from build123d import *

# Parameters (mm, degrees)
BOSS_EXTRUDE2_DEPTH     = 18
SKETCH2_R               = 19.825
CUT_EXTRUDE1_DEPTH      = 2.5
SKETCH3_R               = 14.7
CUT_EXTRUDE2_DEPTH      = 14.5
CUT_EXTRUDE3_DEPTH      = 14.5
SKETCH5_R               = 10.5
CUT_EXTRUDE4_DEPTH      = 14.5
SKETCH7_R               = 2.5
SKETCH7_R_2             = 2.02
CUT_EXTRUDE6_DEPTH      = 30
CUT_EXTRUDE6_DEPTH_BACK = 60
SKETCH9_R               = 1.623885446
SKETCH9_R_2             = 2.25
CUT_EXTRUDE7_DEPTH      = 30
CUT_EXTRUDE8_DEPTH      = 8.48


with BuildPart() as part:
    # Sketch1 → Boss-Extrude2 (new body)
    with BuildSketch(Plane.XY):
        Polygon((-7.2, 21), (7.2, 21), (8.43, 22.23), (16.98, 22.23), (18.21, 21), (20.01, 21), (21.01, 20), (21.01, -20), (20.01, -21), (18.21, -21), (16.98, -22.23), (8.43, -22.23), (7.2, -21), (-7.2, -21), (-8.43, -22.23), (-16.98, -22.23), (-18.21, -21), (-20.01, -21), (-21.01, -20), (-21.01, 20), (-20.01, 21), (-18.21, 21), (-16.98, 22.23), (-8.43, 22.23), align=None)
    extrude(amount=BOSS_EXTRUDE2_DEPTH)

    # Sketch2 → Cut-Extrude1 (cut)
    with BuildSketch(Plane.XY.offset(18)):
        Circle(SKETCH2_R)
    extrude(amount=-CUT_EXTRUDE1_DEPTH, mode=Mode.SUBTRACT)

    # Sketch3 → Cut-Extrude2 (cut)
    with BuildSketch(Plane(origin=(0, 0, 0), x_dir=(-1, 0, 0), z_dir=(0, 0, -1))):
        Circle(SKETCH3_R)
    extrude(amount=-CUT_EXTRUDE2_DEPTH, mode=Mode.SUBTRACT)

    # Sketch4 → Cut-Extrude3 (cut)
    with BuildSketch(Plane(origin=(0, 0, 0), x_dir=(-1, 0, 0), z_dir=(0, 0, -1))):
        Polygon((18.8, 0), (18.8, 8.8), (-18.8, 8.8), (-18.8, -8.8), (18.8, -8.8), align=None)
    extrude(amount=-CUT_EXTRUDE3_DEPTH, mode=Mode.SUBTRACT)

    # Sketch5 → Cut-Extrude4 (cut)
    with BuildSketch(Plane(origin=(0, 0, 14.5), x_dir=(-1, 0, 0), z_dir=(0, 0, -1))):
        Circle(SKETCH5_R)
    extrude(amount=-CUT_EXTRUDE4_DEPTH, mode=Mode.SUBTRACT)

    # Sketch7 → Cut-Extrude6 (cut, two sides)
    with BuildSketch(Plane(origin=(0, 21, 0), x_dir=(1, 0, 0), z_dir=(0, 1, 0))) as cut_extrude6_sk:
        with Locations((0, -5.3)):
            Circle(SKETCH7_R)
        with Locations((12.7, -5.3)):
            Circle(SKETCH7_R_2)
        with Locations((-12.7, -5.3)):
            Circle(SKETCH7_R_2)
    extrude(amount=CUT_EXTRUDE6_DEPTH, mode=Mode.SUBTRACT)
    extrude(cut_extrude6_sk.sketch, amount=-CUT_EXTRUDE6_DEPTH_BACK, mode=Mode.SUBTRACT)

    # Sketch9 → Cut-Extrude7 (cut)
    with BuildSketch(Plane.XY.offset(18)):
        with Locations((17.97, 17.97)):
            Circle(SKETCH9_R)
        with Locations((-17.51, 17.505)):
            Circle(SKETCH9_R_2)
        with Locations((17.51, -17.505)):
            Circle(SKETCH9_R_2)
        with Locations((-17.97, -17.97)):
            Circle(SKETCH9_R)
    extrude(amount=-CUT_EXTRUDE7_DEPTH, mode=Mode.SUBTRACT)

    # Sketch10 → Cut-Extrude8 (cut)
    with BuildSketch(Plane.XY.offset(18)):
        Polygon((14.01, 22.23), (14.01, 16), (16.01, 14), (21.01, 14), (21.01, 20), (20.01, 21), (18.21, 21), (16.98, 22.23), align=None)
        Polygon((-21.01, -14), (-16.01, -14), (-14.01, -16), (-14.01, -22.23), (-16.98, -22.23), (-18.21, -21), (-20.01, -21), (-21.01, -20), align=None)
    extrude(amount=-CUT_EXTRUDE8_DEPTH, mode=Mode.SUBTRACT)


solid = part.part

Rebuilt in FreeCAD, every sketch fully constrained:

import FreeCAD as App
import Part
import Sketcher
Q = App.Units.Quantity

doc = App.newDocument("Part")
body = doc.addObject("PartDesign::Body", "Body")

# Sketch on XY plane
sketch1 = body.newObject("Sketcher::SketchObject", "Sketch")
sketch1.AttachmentSupport = (doc.getObject("XY_Plane"), [""])
sketch1.MapMode = "FlatFace"
sketch1.addGeometry([
    Part.LineSegment(App.Vector(7.2, 21, 0), App.Vector(-7.2, 21, 0)),  # 0
    Part.LineSegment(App.Vector(-7.2, 21, 0), App.Vector(-8.4, 22.2, 0)),  # 1
    Part.LineSegment(App.Vector(-8.4, 22.2, 0), App.Vector(-17, 22.2, 0)),  # 2
    Part.LineSegment(App.Vector(-17, 22.2, 0), App.Vector(-18.2, 21, 0)),  # 3
    Part.LineSegment(App.Vector(-18.2, 21, 0), App.Vector(-20, 21, 0)),  # 4
    Part.LineSegment(App.Vector(-20, 21, 0), App.Vector(-21, 20, 0)),  # 5
    Part.LineSegment(App.Vector(-21, 20, 0), App.Vector(-21, -20, 0)),  # 6
    Part.LineSegment(App.Vector(-21, -20, 0), App.Vector(-20, -21, 0)),  # 7
    Part.LineSegment(App.Vector(-20, -21, 0), App.Vector(-18.2, -21, 0)),  # 8
    Part.LineSegment(App.Vector(-18.2, -21, 0), App.Vector(-17, -22.2, 0)),  # 9
    Part.LineSegment(App.Vector(-17, -22.2, 0), App.Vector(-8.4, -22.2, 0)),  # 10
    Part.LineSegment(App.Vector(-8.4, -22.2, 0), App.Vector(-7.2, -21, 0)),  # 11
    Part.LineSegment(App.Vector(-7.2, -21, 0), App.Vector(7.2, -21, 0)),  # 12
    Part.LineSegment(App.Vector(7.2, -21, 0), App.Vector(8.4, -22.2, 0)),  # 13
    Part.LineSegment(App.Vector(8.4, -22.2, 0), App.Vector(17, -22.2, 0)),  # 14
    Part.LineSegment(App.Vector(17, -22.2, 0), App.Vector(18.2, -21, 0)),  # 15
    Part.LineSegment(App.Vector(18.2, -21, 0), App.Vector(20, -21, 0)),  # 16
    Part.LineSegment(App.Vector(20, -21, 0), App.Vector(21, -20, 0)),  # 17
    Part.LineSegment(App.Vector(21, -20, 0), App.Vector(21, 20, 0)),  # 18
    Part.LineSegment(App.Vector(21, 20, 0), App.Vector(20, 21, 0)),  # 19
    Part.LineSegment(App.Vector(20, 21, 0), App.Vector(18.2, 21, 0)),  # 20
    Part.LineSegment(App.Vector(18.2, 21, 0), App.Vector(17, 22.2, 0)),  # 21
    Part.LineSegment(App.Vector(17, 22.2, 0), App.Vector(8.4, 22.2, 0)),  # 22
    Part.LineSegment(App.Vector(8.4, 22.2, 0), App.Vector(7.2, 21, 0)),  # 23
], False)
sketch1.addConstraint([
    Sketcher.Constraint("Coincident", 0, 2, 1, 1),
    Sketcher.Constraint("Coincident", 1, 2, 2, 1),
    Sketcher.Constraint("Coincident", 2, 2, 3, 1),
    Sketcher.Constraint("Coincident", 3, 2, 4, 1),
    Sketcher.Constraint("Coincident", 4, 2, 5, 1),
    Sketcher.Constraint("Coincident", 5, 2, 6, 1),
    Sketcher.Constraint("Coincident", 6, 2, 7, 1),
    Sketcher.Constraint("Coincident", 7, 2, 8, 1),
    Sketcher.Constraint("Coincident", 8, 2, 9, 1),
    Sketcher.Constraint("Coincident", 9, 2, 10, 1),
    Sketcher.Constraint("Coincident", 10, 2, 11, 1),
    Sketcher.Constraint("Coincident", 11, 2, 12, 1),
    Sketcher.Constraint("Coincident", 12, 2, 13, 1),
    Sketcher.Constraint("Coincident", 13, 2, 14, 1),
    Sketcher.Constraint("Coincident", 14, 2, 15, 1),
    Sketcher.Constraint("Coincident", 15, 2, 16, 1),
    Sketcher.Constraint("Coincident", 16, 2, 17, 1),
    Sketcher.Constraint("Coincident", 17, 2, 18, 1),
    Sketcher.Constraint("Coincident", 18, 2, 19, 1),
    Sketcher.Constraint("Coincident", 19, 2, 20, 1),
    Sketcher.Constraint("Coincident", 20, 2, 21, 1),
    Sketcher.Constraint("Coincident", 21, 2, 22, 1),
    Sketcher.Constraint("Coincident", 22, 2, 23, 1),
    Sketcher.Constraint("Coincident", 23, 2, 0, 1),
    Sketcher.Constraint("Horizontal", 0),
    Sketcher.Constraint("Horizontal", 2),
    Sketcher.Constraint("Horizontal", 4),
    Sketcher.Constraint("Vertical", 6),
    Sketcher.Constraint("Horizontal", 8),
    Sketcher.Constraint("Horizontal", 10),
    Sketcher.Constraint("Horizontal", 12),
    Sketcher.Constraint("Horizontal", 14),
    Sketcher.Constraint("Horizontal", 16),
    Sketcher.Constraint("Vertical", 18),
    Sketcher.Constraint("Horizontal", 20),
    Sketcher.Constraint("Horizontal", 22),
    Sketcher.Constraint("Symmetric", 0, 2, 12, 2, -1, 1),
    Sketcher.Constraint("Symmetric", 1, 2, 13, 2, -1, 1),
    Sketcher.Constraint("Symmetric", 3, 2, 15, 2, -1, 1),
    Sketcher.Constraint("Symmetric", 5, 2, 17, 2, -1, 1),
    Sketcher.Constraint("Symmetric", 7, 2, 19, 2, -1, 1),
    Sketcher.Constraint("Symmetric", 9, 2, 21, 2, -1, 1),
    Sketcher.Constraint("Symmetric", 10, 2, 13, 2, -2),
    Sketcher.Constraint("Symmetric", 8, 2, 15, 2, -2),
    Sketcher.Constraint("Perpendicular", 1, 3),
    Sketcher.Constraint("Parallel", 3, 5),
    Sketcher.Constraint("Perpendicular", 5, 7),
    Sketcher.Constraint("Parallel", 7, 9),
    Sketcher.Constraint("Perpendicular", 9, 11),
    Sketcher.Constraint("Perpendicular", 13, 15),
    Sketcher.Constraint("Parallel", 15, 17),
    Sketcher.Constraint("Perpendicular", 17, 19),
    Sketcher.Constraint("Parallel", 19, 21),
    Sketcher.Constraint("Perpendicular", 21, 23),
    Sketcher.Constraint("Horizontal", 0, 2, 3, 2),
    Sketcher.Constraint("Horizontal", 6, 2, 17, 2),
    Sketcher.Constraint("Vertical", 4, 2, 7, 2),
    Sketcher.Constraint("Vertical", 13, 2, 22, 2),
    Sketcher.Constraint("DistanceY", 6, 2, 6, 1, Q("40 mm")),
    Sketcher.Constraint("DistanceX", 0, 2, 0, 1, Q("14.4 mm")),
    Sketcher.Constraint("DistanceX", 4, 2, 4, 1, Q("1.8 mm")),
    Sketcher.Constraint("DistanceY", -1, 1, 0, 2, Q("21 mm")),
    Sketcher.Constraint("DistanceX", 2, 2, 2, 1, Q("8.55 mm")),
    Sketcher.Constraint("DistanceX", 1, 2, -1, 1, Q("8.43 mm")),
])
pad1 = body.newObject("PartDesign::Pad", "Pad")
pad1.Profile = sketch1
pad1.Length = 18

# Sketch on XY plane
sketch2 = body.newObject("Sketcher::SketchObject", "Sketch001")
sketch2.AttachmentSupport = (doc.getObject("XY_Plane"), [""])
sketch2.MapMode = "FlatFace"
sketch2.AttachmentOffset = App.Placement(App.Vector(0, 0, 18), App.Rotation())
sketch2.addGeometry(Part.Circle(App.Vector(0, 0, 0), App.Vector(0, 0, 1), 20), False)
sketch2.addConstraint([
    Sketcher.Constraint("Coincident", 0, 3, -1, 1),
    Sketcher.Constraint("Diameter", 0, Q("39.65 mm")),
])
pocket1 = body.newObject("PartDesign::Pocket", "Pocket")
pocket1.Profile = sketch2
pocket1.Length = 2.5

# Sketch on XY plane
sketch3 = body.newObject("Sketcher::SketchObject", "Sketch002")
sketch3.AttachmentSupport = (doc.getObject("XY_Plane"), [""])
sketch3.MapMode = "FlatFace"
sketch3.addGeometry(Part.Circle(App.Vector(0, 0, 0), App.Vector(0, 0, 1), 15), False)
sketch3.addConstraint([
    Sketcher.Constraint("Coincident", 0, 3, -1, 1),
    Sketcher.Constraint("Diameter", 0, Q("29.4 mm")),
])
pocket2 = body.newObject("PartDesign::Pocket", "Pocket001")
pocket2.Profile = sketch3
pocket2.Length = 14.5
pocket2.Reversed = True

# Sketch on XY plane
sketch4 = body.newObject("Sketcher::SketchObject", "Sketch003")
sketch4.AttachmentSupport = (doc.getObject("XY_Plane"), [""])
sketch4.MapMode = "FlatFace"
sketch4.addGeometry([
    Part.LineSegment(App.Vector(-19, 9, 0), App.Vector(19, 9, 0)),
    Part.LineSegment(App.Vector(19, 9, 0), App.Vector(19, -9, 0)),
    Part.LineSegment(App.Vector(19, -9, 0), App.Vector(-19, -9, 0)),
    Part.LineSegment(App.Vector(-19, -9, 0), App.Vector(-19, 9, 0)),
], False)
sketch4.addConstraint([
    Sketcher.Constraint("Coincident", 0, 2, 1, 1),
    Sketcher.Constraint("Coincident", 1, 2, 2, 1),
    Sketcher.Constraint("Coincident", 2, 2, 3, 1),
    Sketcher.Constraint("Coincident", 3, 2, 0, 1),
    Sketcher.Constraint("Horizontal", 0),
    Sketcher.Constraint("Vertical", 1),
    Sketcher.Constraint("Horizontal", 2),
    Sketcher.Constraint("Vertical", 3),
    Sketcher.Constraint("Symmetric", 0, 2, 2, 2, -1, 1),
    Sketcher.Constraint("DistanceX", 0, 1, 0, 2, Q("37.6 mm")),
    Sketcher.Constraint("DistanceY", 1, 2, 1, 1, Q("17.6 mm")),
])
pocket3 = body.newObject("PartDesign::Pocket", "Pocket002")
pocket3.Profile = sketch4
pocket3.Length = 14.5
pocket3.Reversed = True

# Sketch on XY plane
sketch5 = body.newObject("Sketcher::SketchObject", "Sketch004")
sketch5.AttachmentSupport = (doc.getObject("XY_Plane"), [""])
sketch5.MapMode = "FlatFace"
sketch5.AttachmentOffset = App.Placement(App.Vector(0, 0, 14.5), App.Rotation())
sketch5.addGeometry(Part.Circle(App.Vector(0, 0, 0), App.Vector(0, 0, 1), 10), False)
sketch5.addConstraint([
    Sketcher.Constraint("Coincident", 0, 3, -1, 1),
    Sketcher.Constraint("Diameter", 0, Q("21 mm")),
])
pocket4 = body.newObject("PartDesign::Pocket", "Pocket003")
pocket4.Profile = sketch5
pocket4.Length = 14.5
pocket4.Reversed = True

# Sketch on XZ plane
sketch6 = body.newObject("Sketcher::SketchObject", "Sketch005")
sketch6.AttachmentSupport = (doc.getObject("XZ_Plane"), [""])
sketch6.MapMode = "FlatFace"
sketch6.AttachmentOffset = App.Placement(App.Vector(0, 0, -21), App.Rotation())
sketch6.addGeometry([
    Part.Circle(App.Vector(0, 5.3, 0), App.Vector(0, 0, 1), 2.5),
    Part.Circle(App.Vector(12.7, 5.3, 0), App.Vector(0, 0, 1), 2),
    Part.Circle(App.Vector(-12.7, 5.3, 0), App.Vector(0, 0, 1), 2),
], False)
sketch6.addConstraint([
    Sketcher.Constraint("Equal", 1, 2),
    Sketcher.Constraint("Symmetric", 1, 3, 2, 3, -2),
    Sketcher.Constraint("PointOnObject", 0, 3, -2),
    Sketcher.Constraint("Horizontal", 0, 3, 1, 3),
    Sketcher.Constraint("Diameter", 0, Q("5 mm")),
    Sketcher.Constraint("Diameter", 1, Q("4.04 mm")),
    Sketcher.Constraint("DistanceY", -1, 1, 0, 3, Q("5.3 mm")),
    Sketcher.Constraint("DistanceX", -1, 1, 1, 3, Q("12.7 mm")),
])
pocket5 = body.newObject("PartDesign::Pocket", "Pocket004")
pocket5.Profile = sketch6
pocket5.Type = "ThroughAll"
pocket5.Midplane = True

# Sketch on XY plane
sketch7 = body.newObject("Sketcher::SketchObject", "Sketch006")
sketch7.AttachmentSupport = (doc.getObject("XY_Plane"), [""])
sketch7.MapMode = "FlatFace"
sketch7.AttachmentOffset = App.Placement(App.Vector(0, 0, 18), App.Rotation())
sketch7.addGeometry([
    Part.Circle(App.Vector(18, 18, 0), App.Vector(0, 0, 1), 1.6),
    Part.Circle(App.Vector(-17.5, 17.5, 0), App.Vector(0, 0, 1), 2.2),
    Part.Circle(App.Vector(17.5, -17.5, 0), App.Vector(0, 0, 1), 2.2),
    Part.Circle(App.Vector(-18, -18, 0), App.Vector(0, 0, 1), 1.6),
], False)
sketch7.addConstraint([
    Sketcher.Constraint("Equal", 1, 2),
    Sketcher.Constraint("Equal", 0, 3),
    Sketcher.Constraint("Symmetric", 1, 3, 2, 3, -1, 1),
    Sketcher.Constraint("Symmetric", 0, 3, 3, 3, -1, 1),
    Sketcher.Constraint("Diameter", 1, Q("4.5 mm")),
    Sketcher.Constraint("Diameter", 0, Q("3.247771 mm")),
    Sketcher.Constraint("DistanceX", -1, 1, 0, 3, Q("17.97 mm")),
    Sketcher.Constraint("DistanceY", -1, 1, 0, 3, Q("17.97 mm")),
    Sketcher.Constraint("DistanceX", 1, 3, -1, 1, Q("17.51 mm")),
    Sketcher.Constraint("DistanceY", 2, 3, 1, 3, Q("35.01 mm")),
])
pocket6 = body.newObject("PartDesign::Pocket", "Pocket005")
pocket6.Profile = sketch7
pocket6.Length = 30

# Sketch on XY plane
sketch8 = body.newObject("Sketcher::SketchObject", "Sketch007")
sketch8.AttachmentSupport = (doc.getObject("XY_Plane"), [""])
sketch8.MapMode = "FlatFace"
sketch8.AttachmentOffset = App.Placement(App.Vector(0, 0, 18), App.Rotation())
sketch8.addGeometry([
    Part.LineSegment(App.Vector(14, 22.2, 0), App.Vector(14, 16, 0)),  # 0
    Part.LineSegment(App.Vector(14, 16, 0), App.Vector(16, 14, 0)),  # 1
    Part.LineSegment(App.Vector(16, 14, 0), App.Vector(21, 14, 0)),  # 2
    Part.LineSegment(App.Vector(21, 14, 0), App.Vector(21, 20, 0)),  # 3
    Part.LineSegment(App.Vector(21, 20, 0), App.Vector(20, 21, 0)),  # 4
    Part.LineSegment(App.Vector(20, 21, 0), App.Vector(18.2, 21, 0)),  # 5
    Part.LineSegment(App.Vector(18.2, 21, 0), App.Vector(17, 22.2, 0)),  # 6
    Part.LineSegment(App.Vector(17, 22.2, 0), App.Vector(14, 22.2, 0)),  # 7
    Part.LineSegment(App.Vector(-16, -14, 0), App.Vector(-21, -14, 0)),  # 8
    Part.LineSegment(App.Vector(-21, -14, 0), App.Vector(-21, -20, 0)),  # 9
    Part.LineSegment(App.Vector(-21, -20, 0), App.Vector(-20, -21, 0)),  # 10
    Part.LineSegment(App.Vector(-20, -21, 0), App.Vector(-18.2, -21, 0)),  # 11
    Part.LineSegment(App.Vector(-18.2, -21, 0), App.Vector(-17, -22.2, 0)),  # 12
    Part.LineSegment(App.Vector(-17, -22.2, 0), App.Vector(-14, -22.2, 0)),  # 13
    Part.LineSegment(App.Vector(-14, -22.2, 0), App.Vector(-14, -16, 0)),  # 14
    Part.LineSegment(App.Vector(-14, -16, 0), App.Vector(-16, -14, 0)),  # 15
], False)
sketch8.addConstraint([
    Sketcher.Constraint("Coincident", 0, 2, 1, 1),
    Sketcher.Constraint("Coincident", 1, 2, 2, 1),
    Sketcher.Constraint("Coincident", 2, 2, 3, 1),
    Sketcher.Constraint("Coincident", 3, 2, 4, 1),
    Sketcher.Constraint("Coincident", 4, 2, 5, 1),
    Sketcher.Constraint("Coincident", 5, 2, 6, 1),
    Sketcher.Constraint("Coincident", 6, 2, 7, 1),
    Sketcher.Constraint("Coincident", 7, 2, 0, 1),
    Sketcher.Constraint("Coincident", 8, 2, 9, 1),
    Sketcher.Constraint("Coincident", 9, 2, 10, 1),
    Sketcher.Constraint("Coincident", 10, 2, 11, 1),
    Sketcher.Constraint("Coincident", 11, 2, 12, 1),
    Sketcher.Constraint("Coincident", 12, 2, 13, 1),
    Sketcher.Constraint("Coincident", 13, 2, 14, 1),
    Sketcher.Constraint("Coincident", 14, 2, 15, 1),
    Sketcher.Constraint("Coincident", 15, 2, 8, 1),
    Sketcher.Constraint("Vertical", 0),
    Sketcher.Constraint("Horizontal", 2),
    Sketcher.Constraint("Vertical", 3),
    Sketcher.Constraint("Horizontal", 5),
    Sketcher.Constraint("Horizontal", 7),
    Sketcher.Constraint("Horizontal", 8),
    Sketcher.Constraint("Vertical", 9),
    Sketcher.Constraint("Horizontal", 11),
    Sketcher.Constraint("Horizontal", 13),
    Sketcher.Constraint("Vertical", 14),
    Sketcher.Constraint("Symmetric", 2, 2, 8, 2, -1, 1),
    Sketcher.Constraint("Symmetric", 4, 2, 10, 2, -1, 1),
    Sketcher.Constraint("Symmetric", 6, 2, 12, 2, -1, 1),
    Sketcher.Constraint("Symmetric", 0, 2, 14, 2, -1, 1),
    Sketcher.Constraint("Parallel", 1, 4),
    Sketcher.Constraint("Parallel", 4, 6),
    Sketcher.Constraint("Parallel", 6, 10),
    Sketcher.Constraint("Parallel", 10, 12),
    Sketcher.Constraint("Parallel", 12, 15),
    Sketcher.Constraint("DistanceX", 2, 1, 2, 2, Q("5 mm")),
    Sketcher.Constraint("DistanceY", 3, 1, 3, 2, Q("6 mm")),
    Sketcher.Constraint("Angle", 1, Q("-45 deg")),
    Sketcher.Constraint("DistanceX", 5, 2, 5, 1, Q("1.8 mm")),
    Sketcher.Constraint("DistanceY", -1, 1, 0, 2, Q("16 mm")),
    Sketcher.Constraint("DistanceY", -1, 1, 1, 2, Q("14 mm")),
    Sketcher.Constraint("DistanceY", -1, 1, 4, 2, Q("21 mm")),
    Sketcher.Constraint("DistanceX", 7, 2, 7, 1, Q("2.97 mm")),
    Sketcher.Constraint("DistanceX", -1, 1, 0, 2, Q("14.01 mm")),
])
pocket7 = body.newObject("PartDesign::Pocket", "Pocket006")
pocket7.Profile = sketch8
pocket7.Length = 8.48

doc.recompute()
